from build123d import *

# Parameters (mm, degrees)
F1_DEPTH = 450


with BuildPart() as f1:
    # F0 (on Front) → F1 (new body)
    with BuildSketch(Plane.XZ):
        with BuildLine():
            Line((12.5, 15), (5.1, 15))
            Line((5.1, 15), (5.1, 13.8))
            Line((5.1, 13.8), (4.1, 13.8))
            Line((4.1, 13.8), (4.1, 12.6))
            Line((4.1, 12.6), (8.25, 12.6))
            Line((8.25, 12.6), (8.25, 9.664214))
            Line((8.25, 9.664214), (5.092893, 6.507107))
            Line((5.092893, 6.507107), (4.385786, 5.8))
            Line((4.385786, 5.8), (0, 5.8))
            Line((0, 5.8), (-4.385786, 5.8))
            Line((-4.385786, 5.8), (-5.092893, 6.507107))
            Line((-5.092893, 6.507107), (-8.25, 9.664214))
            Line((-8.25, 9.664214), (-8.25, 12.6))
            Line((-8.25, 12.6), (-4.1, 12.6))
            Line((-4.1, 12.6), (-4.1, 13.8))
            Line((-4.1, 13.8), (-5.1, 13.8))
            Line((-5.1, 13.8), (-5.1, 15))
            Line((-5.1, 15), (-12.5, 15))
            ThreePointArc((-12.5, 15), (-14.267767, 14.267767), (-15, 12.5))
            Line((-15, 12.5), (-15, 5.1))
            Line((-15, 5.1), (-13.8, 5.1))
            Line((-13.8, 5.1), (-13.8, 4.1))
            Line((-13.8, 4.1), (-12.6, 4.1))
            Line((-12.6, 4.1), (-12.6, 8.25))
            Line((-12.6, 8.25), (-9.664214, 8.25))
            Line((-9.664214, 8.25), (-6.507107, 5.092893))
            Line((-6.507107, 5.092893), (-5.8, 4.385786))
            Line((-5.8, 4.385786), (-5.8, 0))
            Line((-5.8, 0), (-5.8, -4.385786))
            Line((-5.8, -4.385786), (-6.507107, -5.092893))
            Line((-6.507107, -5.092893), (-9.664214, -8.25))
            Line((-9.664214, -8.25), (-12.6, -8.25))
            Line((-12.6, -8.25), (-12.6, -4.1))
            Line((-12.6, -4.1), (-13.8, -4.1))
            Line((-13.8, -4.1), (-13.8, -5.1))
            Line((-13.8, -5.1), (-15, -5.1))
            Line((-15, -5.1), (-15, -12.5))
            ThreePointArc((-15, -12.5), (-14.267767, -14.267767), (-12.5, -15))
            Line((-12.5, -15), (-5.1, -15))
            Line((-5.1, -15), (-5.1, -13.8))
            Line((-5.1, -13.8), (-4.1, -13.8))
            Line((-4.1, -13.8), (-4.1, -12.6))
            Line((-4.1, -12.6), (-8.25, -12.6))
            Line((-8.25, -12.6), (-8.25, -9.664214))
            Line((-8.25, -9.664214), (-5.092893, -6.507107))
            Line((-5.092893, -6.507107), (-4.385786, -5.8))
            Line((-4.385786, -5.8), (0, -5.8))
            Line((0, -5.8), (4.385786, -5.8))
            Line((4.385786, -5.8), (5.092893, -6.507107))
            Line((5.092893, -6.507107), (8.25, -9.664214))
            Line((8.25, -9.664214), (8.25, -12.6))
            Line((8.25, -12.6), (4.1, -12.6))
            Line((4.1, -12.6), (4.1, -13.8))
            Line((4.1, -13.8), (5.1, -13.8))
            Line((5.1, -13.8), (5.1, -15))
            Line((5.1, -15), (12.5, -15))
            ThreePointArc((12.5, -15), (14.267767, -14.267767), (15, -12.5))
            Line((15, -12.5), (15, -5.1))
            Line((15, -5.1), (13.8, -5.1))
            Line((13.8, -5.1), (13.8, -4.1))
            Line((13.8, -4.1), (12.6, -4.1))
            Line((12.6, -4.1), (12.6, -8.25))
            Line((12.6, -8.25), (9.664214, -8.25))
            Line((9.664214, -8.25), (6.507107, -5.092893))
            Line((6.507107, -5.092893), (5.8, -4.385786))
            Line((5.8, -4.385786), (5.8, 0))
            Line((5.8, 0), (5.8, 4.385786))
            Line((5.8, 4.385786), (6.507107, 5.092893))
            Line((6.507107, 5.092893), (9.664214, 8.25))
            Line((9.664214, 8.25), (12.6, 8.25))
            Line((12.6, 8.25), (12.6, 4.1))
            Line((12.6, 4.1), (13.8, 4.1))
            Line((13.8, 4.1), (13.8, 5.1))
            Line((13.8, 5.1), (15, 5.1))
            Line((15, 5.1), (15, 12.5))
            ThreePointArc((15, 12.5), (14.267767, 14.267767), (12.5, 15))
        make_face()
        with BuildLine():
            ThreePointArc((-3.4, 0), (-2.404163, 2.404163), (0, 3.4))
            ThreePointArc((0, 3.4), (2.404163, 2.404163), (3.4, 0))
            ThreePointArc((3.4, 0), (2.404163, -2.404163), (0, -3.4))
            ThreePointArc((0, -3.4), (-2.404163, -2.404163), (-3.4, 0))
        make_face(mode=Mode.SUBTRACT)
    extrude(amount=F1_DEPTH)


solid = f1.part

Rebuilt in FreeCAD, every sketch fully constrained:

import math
import FreeCAD as App
import Part
import Sketcher

V = App.Vector
Q = App.Units.Quantity

doc = App.newDocument("Part")
body = doc.addObject("PartDesign::Body", "Body")

# Sketch on XZ plane
sketch1 = body.newObject("Sketcher::SketchObject", "Sketch")
sketch1.AttachmentSupport = (doc.getObject("XZ_Plane"), [""])
sketch1.MapMode = "FlatFace"
sketch1.addGeometry(Part.LineSegment(V(12.5, 15, 0), V(5.1, 15, 0)), False)
sketch1.addGeometry(Part.LineSegment(V(5.1, 15, 0), V(5.1, 13.8, 0)), False)
sketch1.addGeometry(Part.LineSegment(V(5.1, 13.8, 0), V(4.1, 13.8, 0)), False)
sketch1.addGeometry(Part.LineSegment(V(4.1, 13.8, 0), V(4.1, 12.6, 0)), False)
sketch1.addGeometry(Part.LineSegment(V(4.1, 12.6, 0), V(8.2, 12.6, 0)), False)
sketch1.addGeometry(Part.LineSegment(V(8.2, 12.6, 0), V(8.2, 9.7, 0)), False)
sketch1.addGeometry(Part.LineSegment(V(8.2, 9.7, 0), V(4.4, 5.8, 0)), False)
sketch1.addGeometry(Part.LineSegment(V(4.4, 5.8, 0), V(-4.4, 5.8, 0)), False)
sketch1.addGeometry(Part.LineSegment(V(-4.4, 5.8, 0), V(-8.2, 9.7, 0)), False)
sketch1.addGeometry(Part.LineSegment(V(-8.2, 9.7, 0), V(-8.2, 12.6, 0)), False)
sketch1.addGeometry(Part.LineSegment(V(-8.2, 12.6, 0), V(-4.1, 12.6, 0)), False)
sketch1.addGeometry(Part.LineSegment(V(-4.1, 12.6, 0), V(-4.1, 13.8, 0)), False)
sketch1.addGeometry(Part.LineSegment(V(-4.1, 13.8, 0), V(-5.1, 13.8, 0)), False)
sketch1.addGeometry(Part.LineSegment(V(-5.1, 13.8, 0), V(-5.1, 15, 0)), False)
sketch1.addGeometry(Part.LineSegment(V(-5.1, 15, 0), V(-12.5, 15, 0)), False)
sketch1.addGeometry(Part.ArcOfCircle(Part.Circle(V(-12.5, 12.5, 0), V(0, 0, 1), 2.5), math.radians(90), math.radians(180)), False)
sketch1.addGeometry(Part.LineSegment(V(-15, 12.5, 0), V(-15, 5.1, 0)), False)
sketch1.addGeometry(Part.LineSegment(V(-15, 5.1, 0), V(-13.8, 5.1, 0)), False)
sketch1.addGeometry(Part.LineSegment(V(-13.8, 5.1, 0), V(-13.8, 4.1, 0)), False)
sketch1.addGeometry(Part.LineSegment(V(-13.8, 4.1, 0), V(-12.6, 4.1, 0)), False)
sketch1.addGeometry(Part.LineSegment(V(-12.6, 4.1, 0), V(-12.6, 8.2, 0)), False)
sketch1.addGeometry(Part.LineSegment(V(-12.6, 8.2, 0), V(-9.7, 8.2, 0)), False)
sketch1.addGeometry(Part.LineSegment(V(-9.7, 8.2, 0), V(-5.8, 4.4, 0)), False)
sketch1.addGeometry(Part.LineSegment(V(-5.8, 4.4, 0), V(-5.8, -4.4, 0)), False)
sketch1.addGeometry(Part.LineSegment(V(-5.8, -4.4, 0), V(-9.7, -8.2, 0)), False)
sketch1.addGeometry(Part.LineSegment(V(-9.7, -8.2, 0), V(-12.6, -8.2, 0)), False)
sketch1.addGeometry(Part.LineSegment(V(-12.6, -8.2, 0), V(-12.6, -4.1, 0)), False)
sketch1.addGeometry(Part.LineSegment(V(-12.6, -4.1, 0), V(-13.8, -4.1, 0)), False)
sketch1.addGeometry(Part.LineSegment(V(-13.8, -4.1, 0), V(-13.8, -5.1, 0)), False)
sketch1.addGeometry(Part.LineSegment(V(-13.8, -5.1, 0), V(-15, -5.1, 0)), False)
sketch1.addGeometry(Part.LineSegment(V(-15, -5.1, 0), V(-15, -12.5, 0)), False)
sketch1.addGeometry(Part.ArcOfCircle(Part.Circle(V(-12.5, -12.5, 0), V(0, 0, 1), 2.5), math.radians(180), math.radians(270)), False)
sketch1.addGeometry(Part.LineSegment(V(-12.5, -15, 0), V(-5.1, -15, 0)), False)
sketch1.addGeometry(Part.LineSegment(V(-5.1, -15, 0), V(-5.1, -13.8, 0)), False)
sketch1.addGeometry(Part.LineSegment(V(-5.1, -13.8, 0), V(-4.1, -13.8, 0)), False)
sketch1.addGeometry(Part.LineSegment(V(-4.1, -13.8, 0), V(-4.1, -12.6, 0)), False)
sketch1.addGeometry(Part.LineSegment(V(-4.1, -12.6, 0), V(-8.2, -12.6, 0)), False)
sketch1.addGeometry(Part.LineSegment(V(-8.2, -12.6, 0), V(-8.2, -9.7, 0)), False)
sketch1.addGeometry(Part.LineSegment(V(-8.2, -9.7, 0), V(-4.4, -5.8, 0)), False)
sketch1.addGeometry(Part.LineSegment(V(-4.4, -5.8, 0), V(4.4, -5.8, 0)), False)
sketch1.addGeometry(Part.LineSegment(V(4.4, -5.8, 0), V(8.2, -9.7, 0)), False)
sketch1.addGeometry(Part.LineSegment(V(8.2, -9.7, 0), V(8.2, -12.6, 0)), False)
sketch1.addGeometry(Part.LineSegment(V(8.2, -12.6, 0), V(4.1, -12.6, 0)), False)
sketch1.addGeometry(Part.LineSegment(V(4.1, -12.6, 0), V(4.1, -13.8, 0)), False)
sketch1.addGeometry(Part.LineSegment(V(4.1, -13.8, 0), V(5.1, -13.8, 0)), False)
sketch1.addGeometry(Part.LineSegment(V(5.1, -13.8, 0), V(5.1, -15, 0)), False)
sketch1.addGeometry(Part.LineSegment(V(5.1, -15, 0), V(12.5, -15, 0)), False)
sketch1.addGeometry(Part.ArcOfCircle(Part.Circle(V(12.5, -12.5, 0), V(0, 0, 1), 2.5), math.radians(-90), math.radians(0)), False)
sketch1.addGeometry(Part.LineSegment(V(15, -12.5, 0), V(15, -5.1, 0)), False)
sketch1.addGeometry(Part.LineSegment(V(15, -5.1, 0), V(13.8, -5.1, 0)), False)
sketch1.addGeometry(Part.LineSegment(V(13.8, -5.1, 0), V(13.8, -4.1, 0)), False)
sketch1.addGeometry(Part.LineSegment(V(13.8, -4.1, 0), V(12.6, -4.1, 0)), False)
sketch1.addGeometry(Part.LineSegment(V(12.6, -4.1, 0), V(12.6, -8.2, 0)), False)
sketch1.addGeometry(Part.LineSegment(V(12.6, -8.2, 0), V(9.7, -8.2, 0)), False)
sketch1.addGeometry(Part.LineSegment(V(9.7, -8.2, 0), V(5.8, -4.4, 0)), False)
sketch1.addGeometry(Part.LineSegment(V(5.8, -4.4, 0), V(5.8, 4.4, 0)), False)
sketch1.addGeometry(Part.LineSegment(V(5.8, 4.4, 0), V(9.7, 8.2, 0)), False)
sketch1.addGeometry(Part.LineSegment(V(9.7, 8.2, 0), V(12.6, 8.2, 0)), False)
sketch1.addGeometry(Part.LineSegment(V(12.6, 8.2, 0), V(12.6, 4.1, 0)), False)
sketch1.addGeometry(Part.LineSegment(V(12.6, 4.1, 0), V(13.8, 4.1, 0)), False)
sketch1.addGeometry(Part.LineSegment(V(13.8, 4.1, 0), V(13.8, 5.1, 0)), False)
sketch1.addGeometry(Part.LineSegment(V(13.8, 5.1, 0), V(15, 5.1, 0)), False)
sketch1.addGeometry(Part.LineSegment(V(15, 5.1, 0), V(15, 12.5, 0)), False)
sketch1.addGeometry(Part.ArcOfCircle(Part.Circle(V(12.5, 12.5, 0), V(0, 0, 1), 2.5), math.radians(0), math.radians(90)), False)
sketch1.addGeometry(Part.ArcOfCircle(Part.Circle(V(0, 0, 0), V(0, 0, 1), 3.4), math.radians(-180), math.radians(-90)), False)
sketch1.addGeometry(Part.ArcOfCircle(Part.Circle(V(0, 0, 0), V(0, 0, 1), 3.4), math.radians(90), math.radians(180)), False)
sketch1.addGeometry(Part.ArcOfCircle(Part.Circle(V(0, 0, 0), V(0, 0, 1), 3.4), math.radians(0), math.radians(90)), False)
sketch1.addGeometry(Part.ArcOfCircle(Part.Circle(V(0, 0, 0), V(0, 0, 1), 3.4), math.radians(-90), math.radians(0)), False)
sketch1.addConstraint(Sketcher.Constraint("Coincident", 0, 2, 1, 1))
sketch1.addConstraint(Sketcher.Constraint("Coincident", 1, 2, 2, 1))
sketch1.addConstraint(Sketcher.Constraint("Coincident", 2, 2, 3, 1))
sketch1.addConstraint(Sketcher.Constraint("Coincident", 3, 2, 4, 1))
sketch1.addConstraint(Sketcher.Constraint("Coincident", 4, 2, 5, 1))
sketch1.addConstraint(Sketcher.Constraint("Coincident", 5, 2, 6, 1))
sketch1.addConstraint(Sketcher.Constraint("Coincident", 6, 2, 7, 1))
sketch1.addConstraint(Sketcher.Constraint("Coincident", 7, 2, 8, 1))
sketch1.addConstraint(Sketcher.Constraint("Coincident", 8, 2, 9, 1))
sketch1.addConstraint(Sketcher.Constraint("Coincident", 9, 2, 10, 1))
sketch1.addConstraint(Sketcher.Constraint("Coincident", 10, 2, 11, 1))
sketch1.addConstraint(Sketcher.Constraint("Coincident", 11, 2, 12, 1))
sketch1.addConstraint(Sketcher.Constraint("Coincident", 12, 2, 13, 1))
sketch1.addConstraint(Sketcher.Constraint("Coincident", 13, 2, 14, 1))
sketch1.addConstraint(Sketcher.Constraint("Tangent", 14, 2, 15, 1))
sketch1.addConstraint(Sketcher.Constraint("Tangent", 15, 2, 16, 1))
sketch1.addConstraint(Sketcher.Constraint("Coincident", 16, 2, 17, 1))
sketch1.addConstraint(Sketcher.Constraint("Coincident", 17, 2, 18, 1))
sketch1.addConstraint(Sketcher.Constraint("Coincident", 18, 2, 19, 1))
sketch1.addConstraint(Sketcher.Constraint("Coincident", 19, 2, 20, 1))
sketch1.addConstraint(Sketcher.Constraint("Coincident", 20, 2, 21, 1))
sketch1.addConstraint(Sketcher.Constraint("Coincident", 21, 2, 22, 1))
sketch1.addConstraint(Sketcher.Constraint("Coincident", 22, 2, 23, 1))
sketch1.addConstraint(Sketcher.Constraint("Coincident", 23, 2, 24, 1))
sketch1.addConstraint(Sketcher.Constraint("Coincident", 24, 2, 25, 1))
sketch1.addConstraint(Sketcher.Constraint("Coincident", 25, 2, 26, 1))
sketch1.addConstraint(Sketcher.Constraint("Coincident", 26, 2, 27, 1))
sketch1.addConstraint(Sketcher.Constraint("Coincident", 27, 2, 28, 1))
sketch1.addConstraint(Sketcher.Constraint("Coincident", 28, 2, 29, 1))
sketch1.addConstraint(Sketcher.Constraint("Coincident", 29, 2, 30, 1))
sketch1.addConstraint(Sketcher.Constraint("Tangent", 30, 2, 31, 1))
sketch1.addConstraint(Sketcher.Constraint("Tangent", 31, 2, 32, 1))
sketch1.addConstraint(Sketcher.Constraint("Coincident", 32, 2, 33, 1))
sketch1.addConstraint(Sketcher.Constraint("Coincident", 33, 2, 34, 1))
sketch1.addConstraint(Sketcher.Constraint("Coincident", 34, 2, 35, 1))
sketch1.addConstraint(Sketcher.Constraint("Coincident", 35, 2, 36, 1))
sketch1.addConstraint(Sketcher.Constraint("Coincident", 36, 2, 37, 1))
sketch1.addConstraint(Sketcher.Constraint("Coincident", 37, 2, 38, 1))
sketch1.addConstraint(Sketcher.Constraint("Coincident", 38, 2, 39, 1))
sketch1.addConstraint(Sketcher.Constraint("Coincident", 39, 2, 40, 1))
sketch1.addConstraint(Sketcher.Constraint("Coincident", 40, 2, 41, 1))
sketch1.addConstraint(Sketcher.Constraint("Coincident", 41, 2, 42, 1))
sketch1.addConstraint(Sketcher.Constraint("Coincident", 42, 2, 43, 1))
sketch1.addConstraint(Sketcher.Constraint("Coincident", 43, 2, 44, 1))
sketch1.addConstraint(Sketcher.Constraint("Coincident", 44, 2, 45, 1))
sketch1.addConstraint(Sketcher.Constraint("Coincident", 45, 2, 46, 1))
sketch1.addConstraint(Sketcher.Constraint("Tangent", 46, 2, 47, 1))
sketch1.addConstraint(Sketcher.Constraint("Tangent", 47, 2, 48, 1))
sketch1.addConstraint(Sketcher.Constraint("Coincident", 48, 2, 49, 1))
sketch1.addConstraint(Sketcher.Constraint("Coincident", 49, 2, 50, 1))
sketch1.addConstraint(Sketcher.Constraint("Coincident", 50, 2, 51, 1))
sketch1.addConstraint(Sketcher.Constraint("Coincident", 51, 2, 52, 1))
sketch1.addConstraint(Sketcher.Constraint("Coincident", 52, 2, 53, 1))
sketch1.addConstraint(Sketcher.Constraint("Coincident", 53, 2, 54, 1))
sketch1.addConstraint(Sketcher.Constraint("Coincident", 54, 2, 55, 1))
sketch1.addConstraint(Sketcher.Constraint("Coincident", 55, 2, 56, 1))
sketch1.addConstraint(Sketcher.Constraint("Coincident", 56, 2, 57, 1))
sketch1.addConstraint(Sketcher.Constraint("Coincident", 57, 2, 58, 1))
sketch1.addConstraint(Sketcher.Constraint("Coincident", 58, 2, 59, 1))
sketch1.addConstraint(Sketcher.Constraint("Coincident", 59, 2, 60, 1))
sketch1.addConstraint(Sketcher.Constraint("Coincident", 60, 2, 61, 1))
sketch1.addConstraint(Sketcher.Constraint("Coincident", 61, 2, 62, 1))
sketch1.addConstraint(Sketcher.Constraint("Tangent", 62, 2, 63, 1))
sketch1.addConstraint(Sketcher.Constraint("Tangent", 63, 2, 0, 1))
sketch1.addConstraint(Sketcher.Constraint("Tangent", 64, 1, 65, 2))
sketch1.addConstraint(Sketcher.Constraint("Tangent", 65, 1, 66, 2))
sketch1.addConstraint(Sketcher.Constraint("Tangent", 66, 1, 67, 2))
sketch1.addConstraint(Sketcher.Constraint("Tangent", 67, 1, 64, 2))
sketch1.addConstraint(Sketcher.Constraint("Horizontal", 0))
sketch1.addConstraint(Sketcher.Constraint("Vertical", 1))
sketch1.addConstraint(Sketcher.Constraint("Horizontal", 2))
sketch1.addConstraint(Sketcher.Constraint("Vertical", 3))
sketch1.addConstraint(Sketcher.Constraint("Horizontal", 4))
sketch1.addConstraint(Sketcher.Constraint("Vertical", 5))
sketch1.addConstraint(Sketcher.Constraint("Horizontal", 7))
sketch1.addConstraint(Sketcher.Constraint("Vertical", 9))
sketch1.addConstraint(Sketcher.Constraint("Horizontal", 10))
sketch1.addConstraint(Sketcher.Constraint("Vertical", 11))
sketch1.addConstraint(Sketcher.Constraint("Horizontal", 12))
sketch1.addConstraint(Sketcher.Constraint("Vertical", 13))
sketch1.addConstraint(Sketcher.Constraint("Horizontal", 14))
sketch1.addConstraint(Sketcher.Constraint("Vertical", 16))
sketch1.addConstraint(Sketcher.Constraint("Horizontal", 17))
sketch1.addConstraint(Sketcher.Constraint("Vertical", 18))
sketch1.addConstraint(Sketcher.Constraint("Horizontal", 19))
sketch1.addConstraint(Sketcher.Constraint("Vertical", 20))
sketch1.addConstraint(Sketcher.Constraint("Horizontal", 21))
sketch1.addConstraint(Sketcher.Constraint("Vertical", 23))
sketch1.addConstraint(Sketcher.Constraint("Horizontal", 25))
sketch1.addConstraint(Sketcher.Constraint("Vertical", 26))
sketch1.addConstraint(Sketcher.Constraint("Horizontal", 27))
sketch1.addConstraint(Sketcher.Constraint("Vertical", 28))
sketch1.addConstraint(Sketcher.Constraint("Horizontal", 29))
sketch1.addConstraint(Sketcher.Constraint("Vertical", 30))
sketch1.addConstraint(Sketcher.Constraint("Horizontal", 32))
sketch1.addConstraint(Sketcher.Constraint("Vertical", 33))
sketch1.addConstraint(Sketcher.Constraint("Horizontal", 34))
sketch1.addConstraint(Sketcher.Constraint("Vertical", 35))
sketch1.addConstraint(Sketcher.Constraint("Horizontal", 36))
sketch1.addConstraint(Sketcher.Constraint("Vertical", 37))
sketch1.addConstraint(Sketcher.Constraint("Horizontal", 39))
sketch1.addConstraint(Sketcher.Constraint("Vertical", 41))
sketch1.addConstraint(Sketcher.Constraint("Horizontal", 42))
sketch1.addConstraint(Sketcher.Constraint("Vertical", 43))
sketch1.addConstraint(Sketcher.Constraint("Horizontal", 44))
sketch1.addConstraint(Sketcher.Constraint("Vertical", 45))
sketch1.addConstraint(Sketcher.Constraint("Horizontal", 46))
sketch1.addConstraint(Sketcher.Constraint("Vertical", 48))
sketch1.addConstraint(Sketcher.Constraint("Horizontal", 49))
sketch1.addConstraint(Sketcher.Constraint("Vertical", 50))
sketch1.addConstraint(Sketcher.Constraint("Horizontal", 51))
sketch1.addConstraint(Sketcher.Constraint("Vertical", 52))
sketch1.addConstraint(Sketcher.Constraint("Horizontal", 53))
sketch1.addConstraint(Sketcher.Constraint("Vertical", 55))
sketch1.addConstraint(Sketcher.Constraint("Horizontal", 57))
sketch1.addConstraint(Sketcher.Constraint("Vertical", 58))
sketch1.addConstraint(Sketcher.Constraint("Horizontal", 59))
sketch1.addConstraint(Sketcher.Constraint("Vertical", 60))
sketch1.addConstraint(Sketcher.Constraint("Horizontal", 61))
sketch1.addConstraint(Sketcher.Constraint("Vertical", 62))
sketch1.addConstraint(Sketcher.Constraint("Coincident", 64, 3, -1, 1))
sketch1.addConstraint(Sketcher.Constraint("Equal", 15, 31))
sketch1.addConstraint(Sketcher.Constraint("Equal", 31, 47))
sketch1.addConstraint(Sketcher.Constraint("Equal", 47, 63))
sketch1.addConstraint(Sketcher.Constraint("Equal", 64, 65))
sketch1.addConstraint(Sketcher.Constraint("Symmetric", 15, 3, 47, 3, -1, 1))
sketch1.addConstraint(Sketcher.Constraint("Symmetric", 31, 3, 63, 3, -1, 1))
sketch1.addConstraint(Sketcher.Constraint("Symmetric", 1, 2, 33, 2, -1, 1))
sketch1.addConstraint(Sketcher.Constraint("Symmetric", 3, 2, 35, 2, -1, 1))
sketch1.addConstraint(Sketcher.Constraint("Symmetric", 5, 2, 37, 2, -1, 1))
sketch1.addConstraint(Sketcher.Constraint("Symmetric", 6, 2, 38, 2, -1, 1))
sketch1.addConstraint(Sketcher.Constraint("Symmetric", 8, 2, 40, 2, -1, 1))
sketch1.addConstraint(Sketcher.Constraint("Symmetric", 10, 2, 42, 2, -1, 1))
sketch1.addConstraint(Sketcher.Constraint("Symmetric", 12, 2, 44, 2, -1, 1))
sketch1.addConstraint(Sketcher.Constraint("Symmetric", 17, 2, 49, 2, -1, 1))
sketch1.addConstraint(Sketcher.Constraint("Symmetric", 19, 2, 51, 2, -1, 1))
sketch1.addConstraint(Sketcher.Constraint("Symmetric", 21, 2, 53, 2, -1, 1))
sketch1.addConstraint(Sketcher.Constraint("Symmetric", 22, 2, 54, 2, -1, 1))
sketch1.addConstraint(Sketcher.Constraint("Symmetric", 24, 2, 56, 2, -1, 1))
sketch1.addConstraint(Sketcher.Constraint("Symmetric", 26, 2, 58, 2, -1, 1))
sketch1.addConstraint(Sketcher.Constraint("Symmetric", 28, 2, 60, 2, -1, 1))
sketch1.addConstraint(Sketcher.Constraint("Symmetric", 31, 3, 47, 3, -2))
sketch1.addConstraint(Sketcher.Constraint("Symmetric", 5, 2, 8, 2, -2))
sketch1.addConstraint(Sketcher.Constraint("Symmetric", 3, 2, 10, 2, -2))
sketch1.addConstraint(Sketcher.Constraint("Symmetric", 1, 2, 12, 2, -2))
sketch1.addConstraint(Sketcher.Constraint("Symmetric", 28, 2, 49, 2, -2))
sketch1.addConstraint(Sketcher.Constraint("Symmetric", 26, 2, 51, 2, -2))
sketch1.addConstraint(Sketcher.Constraint("Symmetric", 24, 2, 53, 2, -2))
sketch1.addConstraint(Sketcher.Constraint("PointOnObject", 64, 1, -1))
sketch1.addConstraint(Sketcher.Constraint("PointOnObject", 65, 1, -2))
sketch1.addConstraint(Sketcher.Constraint("PointOnObject", 66, 1, -1))
sketch1.addConstraint(Sketcher.Constraint("PointOnObject", 67, 1, -2))
sketch1.addConstraint(Sketcher.Constraint("Perpendicular", 6, 8))
sketch1.addConstraint(Sketcher.Constraint("Parallel", 8, 22))
sketch1.addConstraint(Sketcher.Constraint("Perpendicular", 22, 24))
sketch1.addConstraint(Sketcher.Constraint("Perpendicular", 38, 40))
sketch1.addConstraint(Sketcher.Constraint("Perpendicular", 54, 56))
sketch1.addConstraint(Sketcher.Constraint("Horizontal", 23, 2, 54, 2))
sketch1.addConstraint(Sketcher.Constraint("Equal", 17, 19))
sketch1.addConstraint(Sketcher.Constraint("Equal", 61, 1))
sketch1.addConstraint(Sketcher.Constraint("Equal", 1, 3))
sketch1.addConstraint(Sketcher.Constraint("Equal", 57, 5))
sketch1.addConstraint(Sketcher.Constraint("Equal", 46, 16))
sketch1.addConstraint(Sketcher.Constraint("Equal", 44, 18))
sketch1.addConstraint(Sketcher.Constraint("Equal", 42, 20))
sketch1.addConstraint(Sketcher.Constraint("Equal", 39, 23))
sketch1.addConstraint(Sketcher.Constraint("Equal", 8, 22))
sketch1.addConstraint(Sketcher.Constraint("Radius", 15, Q("2.5 mm")))
sketch1.addConstraint(Sketcher.Constraint("Radius", 64, Q("3.4 mm")))
sketch1.addConstraint(Sketcher.Constraint("DistanceX", 2, 2, 2, 1, Q("1 mm")))
sketch1.addConstraint(Sketcher.Constraint("DistanceX", 0, 2, 0, 1, Q("7.4 mm")))
sketch1.addConstraint(Sketcher.Constraint("DistanceX", 17, 1, 17, 2, Q("1.2 mm")))
sketch1.addConstraint(Sketcher.Constraint("DistanceY", -1, 1, 0, 2, Q("15 mm")))
sketch1.addConstraint(Sketcher.Constraint("DistanceX", 4, 1, 4, 2, Q("4.15 mm")))
sketch1.addConstraint(Sketcher.Constraint("DistanceY", -1, 1, 6, 2, Q("5.8 mm")))
sketch1.addConstraint(Sketcher.Constraint("DistanceX", 7, 2, 7, 1, Q("8.771572 mm")))
pad1 = body.newObject("PartDesign::Pad", "Pad")
pad1.Profile = sketch1
pad1.Length = 450

doc.recompute()
